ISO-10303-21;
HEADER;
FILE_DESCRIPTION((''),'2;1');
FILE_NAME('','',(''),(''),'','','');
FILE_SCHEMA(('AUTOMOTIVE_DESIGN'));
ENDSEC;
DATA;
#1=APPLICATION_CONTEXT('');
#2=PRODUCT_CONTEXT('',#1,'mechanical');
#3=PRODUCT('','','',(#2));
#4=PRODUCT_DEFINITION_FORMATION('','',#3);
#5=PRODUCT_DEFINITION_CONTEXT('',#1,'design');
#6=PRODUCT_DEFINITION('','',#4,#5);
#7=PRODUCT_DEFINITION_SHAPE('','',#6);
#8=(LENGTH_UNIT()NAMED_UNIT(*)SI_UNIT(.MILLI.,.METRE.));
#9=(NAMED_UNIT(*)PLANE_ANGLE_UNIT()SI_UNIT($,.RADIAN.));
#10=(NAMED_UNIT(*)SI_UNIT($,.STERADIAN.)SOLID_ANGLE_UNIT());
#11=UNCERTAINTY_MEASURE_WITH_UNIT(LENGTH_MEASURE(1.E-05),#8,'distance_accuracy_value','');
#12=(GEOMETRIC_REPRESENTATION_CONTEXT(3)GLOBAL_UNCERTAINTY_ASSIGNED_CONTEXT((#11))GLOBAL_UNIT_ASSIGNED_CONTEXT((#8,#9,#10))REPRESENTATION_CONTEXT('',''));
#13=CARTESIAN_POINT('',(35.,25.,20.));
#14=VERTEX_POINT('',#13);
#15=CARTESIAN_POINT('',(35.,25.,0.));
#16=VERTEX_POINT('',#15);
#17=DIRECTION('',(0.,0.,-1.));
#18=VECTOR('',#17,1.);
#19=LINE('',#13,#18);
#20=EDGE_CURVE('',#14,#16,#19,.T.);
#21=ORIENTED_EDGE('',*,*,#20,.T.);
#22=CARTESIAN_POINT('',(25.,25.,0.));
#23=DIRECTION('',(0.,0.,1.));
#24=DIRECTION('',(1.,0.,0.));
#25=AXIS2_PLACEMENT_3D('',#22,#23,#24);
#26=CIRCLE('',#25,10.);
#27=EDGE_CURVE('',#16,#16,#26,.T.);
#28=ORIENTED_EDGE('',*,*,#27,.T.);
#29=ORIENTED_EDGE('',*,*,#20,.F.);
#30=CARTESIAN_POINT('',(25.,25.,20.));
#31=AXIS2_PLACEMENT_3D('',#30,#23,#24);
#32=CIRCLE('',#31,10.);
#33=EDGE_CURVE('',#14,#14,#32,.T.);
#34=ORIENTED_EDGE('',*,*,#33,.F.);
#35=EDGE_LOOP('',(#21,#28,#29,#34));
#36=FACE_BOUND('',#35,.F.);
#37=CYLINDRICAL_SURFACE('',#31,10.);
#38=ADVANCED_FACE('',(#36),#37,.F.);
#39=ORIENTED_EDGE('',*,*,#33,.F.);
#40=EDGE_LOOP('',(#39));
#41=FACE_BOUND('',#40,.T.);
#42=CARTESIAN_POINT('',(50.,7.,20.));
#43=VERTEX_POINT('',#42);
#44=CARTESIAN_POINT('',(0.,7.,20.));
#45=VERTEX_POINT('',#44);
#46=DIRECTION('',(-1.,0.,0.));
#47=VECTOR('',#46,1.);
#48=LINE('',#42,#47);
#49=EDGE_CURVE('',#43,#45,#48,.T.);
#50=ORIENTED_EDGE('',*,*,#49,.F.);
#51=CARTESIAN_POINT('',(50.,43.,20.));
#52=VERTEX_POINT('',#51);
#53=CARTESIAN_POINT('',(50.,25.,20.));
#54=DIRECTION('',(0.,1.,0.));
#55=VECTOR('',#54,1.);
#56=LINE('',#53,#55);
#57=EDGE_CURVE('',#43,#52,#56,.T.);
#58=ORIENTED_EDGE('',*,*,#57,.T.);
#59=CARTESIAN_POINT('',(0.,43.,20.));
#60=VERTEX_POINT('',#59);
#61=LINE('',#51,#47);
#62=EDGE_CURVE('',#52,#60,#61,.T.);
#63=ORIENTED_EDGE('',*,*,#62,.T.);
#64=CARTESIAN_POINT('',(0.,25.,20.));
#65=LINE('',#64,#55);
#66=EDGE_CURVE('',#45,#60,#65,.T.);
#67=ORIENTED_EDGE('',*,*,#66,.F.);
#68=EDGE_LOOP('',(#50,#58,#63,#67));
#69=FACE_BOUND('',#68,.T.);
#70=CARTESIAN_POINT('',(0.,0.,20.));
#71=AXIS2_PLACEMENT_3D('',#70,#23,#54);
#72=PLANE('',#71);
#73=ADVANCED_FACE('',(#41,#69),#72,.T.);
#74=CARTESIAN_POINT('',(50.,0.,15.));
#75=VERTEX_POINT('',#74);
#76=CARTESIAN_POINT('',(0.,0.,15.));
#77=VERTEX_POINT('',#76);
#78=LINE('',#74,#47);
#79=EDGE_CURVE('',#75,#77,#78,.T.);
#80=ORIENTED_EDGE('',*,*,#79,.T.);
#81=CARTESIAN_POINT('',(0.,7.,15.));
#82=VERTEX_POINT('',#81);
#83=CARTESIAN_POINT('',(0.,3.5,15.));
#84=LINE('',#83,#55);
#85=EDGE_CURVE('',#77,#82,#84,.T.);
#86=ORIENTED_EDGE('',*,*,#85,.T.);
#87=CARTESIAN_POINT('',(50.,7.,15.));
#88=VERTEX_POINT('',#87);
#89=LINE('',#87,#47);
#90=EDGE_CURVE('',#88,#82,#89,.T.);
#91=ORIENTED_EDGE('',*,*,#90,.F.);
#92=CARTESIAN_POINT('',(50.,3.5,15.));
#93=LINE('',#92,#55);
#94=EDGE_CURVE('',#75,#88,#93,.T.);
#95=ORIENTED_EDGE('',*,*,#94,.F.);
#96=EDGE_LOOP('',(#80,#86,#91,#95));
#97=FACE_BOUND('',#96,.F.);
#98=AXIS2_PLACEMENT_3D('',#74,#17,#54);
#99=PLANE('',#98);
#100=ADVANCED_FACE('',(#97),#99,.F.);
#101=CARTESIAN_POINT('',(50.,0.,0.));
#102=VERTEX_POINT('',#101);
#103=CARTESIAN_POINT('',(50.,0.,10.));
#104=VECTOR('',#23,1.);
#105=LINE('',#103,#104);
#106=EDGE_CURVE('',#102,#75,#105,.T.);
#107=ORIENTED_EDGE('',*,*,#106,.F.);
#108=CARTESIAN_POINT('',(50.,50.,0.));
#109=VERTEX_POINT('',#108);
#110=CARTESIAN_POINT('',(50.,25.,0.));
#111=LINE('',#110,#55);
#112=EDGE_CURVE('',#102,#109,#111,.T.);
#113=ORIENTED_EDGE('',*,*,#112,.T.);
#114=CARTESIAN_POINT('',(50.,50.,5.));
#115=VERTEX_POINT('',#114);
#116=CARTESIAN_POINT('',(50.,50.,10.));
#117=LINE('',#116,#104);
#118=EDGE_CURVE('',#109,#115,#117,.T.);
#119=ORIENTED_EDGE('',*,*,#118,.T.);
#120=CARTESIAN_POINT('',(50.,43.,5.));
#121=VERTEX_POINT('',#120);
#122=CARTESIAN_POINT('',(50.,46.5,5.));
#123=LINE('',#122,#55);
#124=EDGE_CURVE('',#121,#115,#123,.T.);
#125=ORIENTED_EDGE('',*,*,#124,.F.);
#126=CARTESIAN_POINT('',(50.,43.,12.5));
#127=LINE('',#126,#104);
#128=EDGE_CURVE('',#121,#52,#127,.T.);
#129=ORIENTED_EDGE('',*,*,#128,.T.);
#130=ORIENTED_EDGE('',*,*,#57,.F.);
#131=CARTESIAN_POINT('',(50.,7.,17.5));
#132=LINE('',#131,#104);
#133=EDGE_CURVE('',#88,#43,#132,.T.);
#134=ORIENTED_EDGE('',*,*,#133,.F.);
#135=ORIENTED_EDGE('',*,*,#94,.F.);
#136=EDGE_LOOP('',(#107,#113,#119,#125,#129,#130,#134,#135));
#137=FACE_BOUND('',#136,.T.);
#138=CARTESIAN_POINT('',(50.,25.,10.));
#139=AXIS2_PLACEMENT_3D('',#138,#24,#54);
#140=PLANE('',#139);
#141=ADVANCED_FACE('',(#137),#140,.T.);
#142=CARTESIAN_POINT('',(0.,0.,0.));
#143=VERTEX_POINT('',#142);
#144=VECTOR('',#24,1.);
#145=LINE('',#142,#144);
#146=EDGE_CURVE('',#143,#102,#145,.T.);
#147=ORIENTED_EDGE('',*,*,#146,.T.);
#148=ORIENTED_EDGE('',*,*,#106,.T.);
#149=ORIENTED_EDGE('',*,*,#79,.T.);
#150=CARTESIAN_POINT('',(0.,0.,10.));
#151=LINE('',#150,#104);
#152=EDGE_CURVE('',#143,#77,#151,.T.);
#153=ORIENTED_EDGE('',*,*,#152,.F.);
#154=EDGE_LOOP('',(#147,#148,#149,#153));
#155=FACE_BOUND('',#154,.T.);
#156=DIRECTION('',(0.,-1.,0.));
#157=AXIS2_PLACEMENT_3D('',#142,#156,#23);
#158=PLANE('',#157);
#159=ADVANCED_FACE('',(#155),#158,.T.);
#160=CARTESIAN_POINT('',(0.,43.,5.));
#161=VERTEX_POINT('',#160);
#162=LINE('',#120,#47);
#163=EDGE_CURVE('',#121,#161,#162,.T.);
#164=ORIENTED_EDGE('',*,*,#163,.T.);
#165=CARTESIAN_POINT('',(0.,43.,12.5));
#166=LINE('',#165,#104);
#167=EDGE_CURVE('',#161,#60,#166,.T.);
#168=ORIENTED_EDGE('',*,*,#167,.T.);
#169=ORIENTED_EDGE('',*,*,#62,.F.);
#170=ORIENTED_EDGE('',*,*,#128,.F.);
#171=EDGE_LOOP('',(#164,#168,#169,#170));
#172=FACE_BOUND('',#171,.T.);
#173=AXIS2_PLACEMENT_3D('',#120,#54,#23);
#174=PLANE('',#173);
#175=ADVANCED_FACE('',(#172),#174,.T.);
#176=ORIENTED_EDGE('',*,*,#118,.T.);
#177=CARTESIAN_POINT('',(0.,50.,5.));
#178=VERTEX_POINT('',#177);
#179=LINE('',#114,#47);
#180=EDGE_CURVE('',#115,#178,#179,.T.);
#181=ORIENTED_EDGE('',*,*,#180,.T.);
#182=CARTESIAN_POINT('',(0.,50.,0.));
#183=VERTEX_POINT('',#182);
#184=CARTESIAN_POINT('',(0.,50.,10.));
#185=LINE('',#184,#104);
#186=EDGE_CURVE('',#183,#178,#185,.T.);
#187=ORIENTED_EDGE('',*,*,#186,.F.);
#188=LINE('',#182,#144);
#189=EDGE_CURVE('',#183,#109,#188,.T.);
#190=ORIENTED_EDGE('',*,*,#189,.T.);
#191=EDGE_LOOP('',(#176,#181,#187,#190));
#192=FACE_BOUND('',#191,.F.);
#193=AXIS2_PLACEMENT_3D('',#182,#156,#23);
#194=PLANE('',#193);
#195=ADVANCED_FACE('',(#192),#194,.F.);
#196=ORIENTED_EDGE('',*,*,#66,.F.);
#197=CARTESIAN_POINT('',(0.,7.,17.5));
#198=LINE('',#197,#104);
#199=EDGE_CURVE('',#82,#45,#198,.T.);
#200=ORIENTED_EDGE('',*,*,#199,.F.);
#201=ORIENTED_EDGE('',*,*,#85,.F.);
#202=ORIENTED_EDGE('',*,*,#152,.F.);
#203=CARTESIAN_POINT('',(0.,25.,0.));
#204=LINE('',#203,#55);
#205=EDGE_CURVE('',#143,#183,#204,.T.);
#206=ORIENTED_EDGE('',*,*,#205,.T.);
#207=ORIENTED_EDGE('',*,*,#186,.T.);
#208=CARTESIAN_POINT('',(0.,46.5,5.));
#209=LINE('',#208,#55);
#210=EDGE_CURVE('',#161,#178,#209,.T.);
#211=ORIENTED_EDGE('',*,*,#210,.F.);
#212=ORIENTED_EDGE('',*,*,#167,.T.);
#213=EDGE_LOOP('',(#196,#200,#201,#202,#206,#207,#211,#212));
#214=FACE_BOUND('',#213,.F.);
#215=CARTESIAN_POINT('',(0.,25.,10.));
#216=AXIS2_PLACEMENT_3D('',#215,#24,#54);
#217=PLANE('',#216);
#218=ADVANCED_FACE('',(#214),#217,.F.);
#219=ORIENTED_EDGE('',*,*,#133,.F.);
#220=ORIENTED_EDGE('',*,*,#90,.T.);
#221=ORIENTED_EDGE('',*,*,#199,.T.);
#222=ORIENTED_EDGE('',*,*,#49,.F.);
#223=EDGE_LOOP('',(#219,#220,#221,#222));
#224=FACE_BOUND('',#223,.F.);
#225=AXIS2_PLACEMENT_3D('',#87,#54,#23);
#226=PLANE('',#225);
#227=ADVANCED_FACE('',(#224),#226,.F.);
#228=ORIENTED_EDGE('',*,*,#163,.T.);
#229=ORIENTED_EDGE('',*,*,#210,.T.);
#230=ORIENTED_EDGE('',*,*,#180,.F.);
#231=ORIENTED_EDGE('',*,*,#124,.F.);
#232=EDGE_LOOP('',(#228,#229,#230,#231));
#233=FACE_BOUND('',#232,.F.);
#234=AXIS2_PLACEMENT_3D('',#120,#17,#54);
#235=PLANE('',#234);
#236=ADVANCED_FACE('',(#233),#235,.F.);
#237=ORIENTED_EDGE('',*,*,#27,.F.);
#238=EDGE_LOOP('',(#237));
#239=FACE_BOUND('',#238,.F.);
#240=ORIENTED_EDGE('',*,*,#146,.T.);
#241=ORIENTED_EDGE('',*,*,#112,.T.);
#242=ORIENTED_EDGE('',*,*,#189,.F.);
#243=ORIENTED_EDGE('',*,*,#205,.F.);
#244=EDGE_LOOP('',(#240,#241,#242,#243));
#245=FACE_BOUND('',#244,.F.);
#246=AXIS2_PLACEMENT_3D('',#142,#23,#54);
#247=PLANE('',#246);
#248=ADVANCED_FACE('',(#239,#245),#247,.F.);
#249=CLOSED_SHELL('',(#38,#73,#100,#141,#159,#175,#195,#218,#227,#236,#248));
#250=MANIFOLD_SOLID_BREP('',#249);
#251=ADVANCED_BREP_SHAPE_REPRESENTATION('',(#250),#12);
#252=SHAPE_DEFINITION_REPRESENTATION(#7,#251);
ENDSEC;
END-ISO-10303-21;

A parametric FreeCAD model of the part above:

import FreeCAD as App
import Part
import Sketcher
Q = App.Units.Quantity

doc = App.newDocument("Part")
body = doc.addObject("PartDesign::Body", "Body")

# Sketch on YZ plane
sketch1 = doc.addObject("Sketcher::SketchObject", "Sketch")
body.addObject(sketch1)
sketch1.AttachmentSupport = (doc.YZ_Plane, [""])
sketch1.MapMode = "FlatFace"
sketch1.addGeometry([
    Part.LineSegment(App.Vector(0, 20, 0), App.Vector(0, 0, 0)),
    Part.LineSegment(App.Vector(0, 0, 0), App.Vector(50, 0, 0)),
    Part.LineSegment(App.Vector(50, 0, 0), App.Vector(50, 20, 0)),
    Part.LineSegment(App.Vector(50, 20, 0), App.Vector(0, 20, 0)),
], False)
sketch1.addConstraint([
    Sketcher.Constraint("Coincident", 0, 2, 1, 1),
    Sketcher.Constraint("Coincident", 1, 2, 2, 1),
    Sketcher.Constraint("Coincident", 2, 2, 3, 1),
    Sketcher.Constraint("Coincident", 3, 2, 0, 1),
    Sketcher.Constraint("Vertical", 0),
    Sketcher.Constraint("Horizontal", 1),
    Sketcher.Constraint("Vertical", 2),
    Sketcher.Constraint("Horizontal", 3),
    Sketcher.Constraint("Coincident", 0, 2, -1, 1),
    Sketcher.Constraint("DistanceX", 1, 1, 1, 2, Q("50 mm")),
    Sketcher.Constraint("DistanceY", 0, 2, 0, 1, Q("20 mm")),
])
pad1 = doc.addObject("PartDesign::Pad", "Pad")
body.addObject(pad1)
pad1.Profile = sketch1
pad1.Length = 50

# Sketch on YZ plane
sketch2 = doc.addObject("Sketcher::SketchObject", "Sketch001")
body.addObject(sketch2)
sketch2.AttachmentSupport = (doc.YZ_Plane, [""])
sketch2.MapMode = "FlatFace"
sketch2.AttachmentOffset = App.Placement(App.Vector(0, 0, 50), App.Rotation())
sketch2.addGeometry([
    Part.LineSegment(App.Vector(0, 20, 0), App.Vector(0, 15, 0)),  # 0
    Part.LineSegment(App.Vector(0, 15, 0), App.Vector(7, 15, 0)),  # 1
    Part.LineSegment(App.Vector(7, 15, 0), App.Vector(7, 20, 0)),  # 2
    Part.LineSegment(App.Vector(7, 20, 0), App.Vector(0, 20, 0)),  # 3
    Part.LineSegment(App.Vector(43, 20, 0), App.Vector(43, 5, 0)),  # 4
    Part.LineSegment(App.Vector(43, 5, 0), App.Vector(50, 5, 0)),  # 5
    Part.LineSegment(App.Vector(50, 5, 0), App.Vector(50, 20, 0)),  # 6
    Part.LineSegment(App.Vector(50, 20, 0), App.Vector(43, 20, 0)),  # 7
], False)
sketch2.addConstraint([
    Sketcher.Constraint("Coincident", 0, 2, 1, 1),
    Sketcher.Constraint("Coincident", 1, 2, 2, 1),
    Sketcher.Constraint("Coincident", 2, 2, 3, 1),
    Sketcher.Constraint("Coincident", 3, 2, 0, 1),
    Sketcher.Constraint("Coincident", 4, 2, 5, 1),
    Sketcher.Constraint("Coincident", 5, 2, 6, 1),
    Sketcher.Constraint("Coincident", 6, 2, 7, 1),
    Sketcher.Constraint("Coincident", 7, 2, 4, 1),
    Sketcher.Constraint("Vertical", 0),
    Sketcher.Constraint("Horizontal", 1),
    Sketcher.Constraint("Vertical", 2),
    Sketcher.Constraint("Horizontal", 3),
    Sketcher.Constraint("Vertical", 4),
    Sketcher.Constraint("Horizontal", 5),
    Sketcher.Constraint("Vertical", 6),
    Sketcher.Constraint("Horizontal", 7),
    Sketcher.Constraint("PointOnObject", 0, 2, -2),
    Sketcher.Constraint("Horizontal", 3, 2, 6, 2),
    Sketcher.Constraint("Equal", 3, 5),
    Sketcher.Constraint("DistanceX", 1, 1, 1, 2, Q("7 mm")),
    Sketcher.Constraint("DistanceY", 0, 2, 0, 1, Q("5 mm")),
    Sketcher.Constraint("DistanceY", 4, 2, 4, 1, Q("15 mm")),
    Sketcher.Constraint("DistanceY", -1, 1, 0, 2, Q("15 mm")),
    Sketcher.Constraint("DistanceX", -1, 1, 4, 2, Q("43 mm")),
])
pocket1 = doc.addObject("PartDesign::Pocket", "Pocket")
body.addObject(pocket1)
pocket1.Profile = sketch2
pocket1.Length = 50

# Sketch on XY plane
sketch3 = doc.addObject("Sketcher::SketchObject", "Sketch002")
body.addObject(sketch3)
sketch3.AttachmentSupport = (doc.XY_Plane, [""])
sketch3.MapMode = "FlatFace"
sketch3.AttachmentOffset = App.Placement(App.Vector(0, 0, 20), App.Rotation())
sketch3.addGeometry(Part.Circle(App.Vector(25, 25, 0), App.Vector(0, 0, 1), 10), False)
sketch3.addConstraint([
    Sketcher.Constraint("Diameter", 0, Q("20 mm")),
    Sketcher.Constraint("DistanceX", -1, 1, 0, 3, Q("25 mm")),
    Sketcher.Constraint("DistanceY", -1, 1, 0, 3, Q("25 mm")),
])
pocket2 = doc.addObject("PartDesign::Pocket", "Pocket001")
body.addObject(pocket2)
pocket2.Profile = sketch3
pocket2.Length = 20

doc.recompute()
